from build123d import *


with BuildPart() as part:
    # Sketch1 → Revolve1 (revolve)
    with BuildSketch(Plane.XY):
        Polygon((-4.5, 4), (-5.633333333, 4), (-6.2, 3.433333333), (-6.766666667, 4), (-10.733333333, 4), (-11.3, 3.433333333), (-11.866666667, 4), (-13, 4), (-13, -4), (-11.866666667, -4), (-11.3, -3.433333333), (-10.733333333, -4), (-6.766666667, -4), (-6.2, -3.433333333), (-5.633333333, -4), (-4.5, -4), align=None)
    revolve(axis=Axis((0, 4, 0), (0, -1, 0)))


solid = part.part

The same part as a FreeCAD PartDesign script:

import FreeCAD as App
import Part
import Sketcher

V = App.Vector

doc = App.newDocument("Part")
body = doc.addObject("PartDesign::Body", "Body")

sketch1 = doc.addObject("Sketcher::SketchObject", "Sketch")
body.addObject(sketch1)
sketch1.AttachmentSupport = (doc.XY_Plane, [""])
sketch1.MapMode = "FlatFace"
sketch1.addGeometry(Part.LineSegment(V(-4.5, 4, 0), V(-5.6, 4, 0)), False)
sketch1.addGeometry(Part.LineSegment(V(-5.6, 4, 0), V(-6.2, 3.4, 0)), False)
sketch1.addGeometry(Part.LineSegment(V(-6.2, 3.4, 0), V(-6.8, 4, 0)), False)
sketch1.addGeometry(Part.LineSegment(V(-6.8, 4, 0), V(-10.7, 4, 0)), False)
sketch1.addGeometry(Part.LineSegment(V(-10.7, 4, 0), V(-11.3, 3.4, 0)), False)
sketch1.addGeometry(Part.LineSegment(V(-11.3, 3.4, 0), V(-11.9, 4, 0)), False)
sketch1.addGeometry(Part.LineSegment(V(-11.9, 4, 0), V(-13, 4, 0)), False)
sketch1.addGeometry(Part.LineSegment(V(-13, 4, 0), V(-13, -4, 0)), False)
sketch1.addGeometry(Part.LineSegment(V(-13, -4, 0), V(-11.9, -4, 0)), False)
sketch1.addGeometry(Part.LineSegment(V(-11.9, -4, 0), V(-11.3, -3.4, 0)), False)
sketch1.addGeometry(Part.LineSegment(V(-11.3, -3.4, 0), V(-10.7, -4, 0)), False)
sketch1.addGeometry(Part.LineSegment(V(-10.7, -4, 0), V(-6.8, -4, 0)), False)
sketch1.addGeometry(Part.LineSegment(V(-6.8, -4, 0), V(-6.2, -3.4, 0)), False)
sketch1.addGeometry(Part.LineSegment(V(-6.2, -3.4, 0), V(-5.6, -4, 0)), False)
sketch1.addGeometry(Part.LineSegment(V(-5.6, -4, 0), V(-4.5, -4, 0)), False)
sketch1.addGeometry(Part.LineSegment(V(-4.5, -4, 0), V(-4.5, 4, 0)), False)
sketch1.addConstraint(Sketcher.Constraint("Coincident", 0, 2, 1, 1))
sketch1.addConstraint(Sketcher.Constraint("Coincident", 1, 2, 2, 1))
sketch1.addConstraint(Sketcher.Constraint("Coincident", 2, 2, 3, 1))
sketch1.addConstraint(Sketcher.Constraint("Coincident", 3, 2, 4, 1))
sketch1.addConstraint(Sketcher.Constraint("Coincident", 4, 2, 5, 1))
sketch1.addConstraint(Sketcher.Constraint("Coincident", 5, 2, 6, 1))
sketch1.addConstraint(Sketcher.Constraint("Coincident", 6, 2, 7, 1))
sketch1.addConstraint(Sketcher.Constraint("Coincident", 7, 2, 8, 1))
sketch1.addConstraint(Sketcher.Constraint("Coincident", 8, 2, 9, 1))
sketch1.addConstraint(Sketcher.Constraint("Coincident", 9, 2, 10, 1))
sketch1.addConstraint(Sketcher.Constraint("Coincident", 10, 2, 11, 1))
sketch1.addConstraint(Sketcher.Constraint("Coincident", 11, 2, 12, 1))
sketch1.addConstraint(Sketcher.Constraint("Coincident", 12, 2, 13, 1))
sketch1.addConstraint(Sketcher.Constraint("Coincident", 13, 2, 14, 1))
sketch1.addConstraint(Sketcher.Constraint("Coincident", 14, 2, 15, 1))
sketch1.addConstraint(Sketcher.Constraint("Coincident", 15, 2, 0, 1))
sketch1.addConstraint(Sketcher.Constraint("Horizontal", 0))
sketch1.addConstraint(Sketcher.Constraint("Horizontal", 3))
sketch1.addConstraint(Sketcher.Constraint("Horizontal", 6))
sketch1.addConstraint(Sketcher.Constraint("Vertical", 7))
sketch1.addConstraint(Sketcher.Constraint("Horizontal", 8))
sketch1.addConstraint(Sketcher.Constraint("Horizontal", 11))
sketch1.addConstraint(Sketcher.Constraint("Horizontal", 14))
sketch1.addConstraint(Sketcher.Constraint("Vertical", 15))
sketch1.addConstraint(Sketcher.Constraint("Symmetric", 5, 2, 8, 2, -1))
sketch1.addConstraint(Sketcher.Constraint("Symmetric", 4, 2, 9, 2, -1))
sketch1.addConstraint(Sketcher.Constraint("Symmetric", 3, 2, 10, 2, -1))
sketch1.addConstraint(Sketcher.Constraint("Symmetric", 1, 2, 12, 2, -1))
sketch1.addConstraint(Sketcher.Constraint("Symmetric", 0, 2, 13, 2, -1))
sketch1.addConstraint(Sketcher.Constraint("Perpendicular", 1, 2))
sketch1.addConstraint(Sketcher.Constraint("Perpendicular", 2, 4))
sketch1.addConstraint(Sketcher.Constraint("Perpendicular", 4, 5))
sketch1.addConstraint(Sketcher.Constraint("Perpendicular", 5, 9))
sketch1.addConstraint(Sketcher.Constraint("Perpendicular", 10, 12))
sketch1.addConstraint(Sketcher.Constraint("Horizontal", 0, 2, 2, 2))
sketch1.addConstraint(Sketcher.Constraint("Horizontal", 1, 2, 4, 2))
sketch1.addConstraint(Sketcher.Constraint("Horizontal", 3, 2, 5, 2))
sketch1.addConstraint(Sketcher.Constraint("Equal", 0, 6))
sketch1.addConstraint(Sketcher.Constraint("DistanceY", 7, 2, 7, 1, 8.0))
sketch1.addConstraint(Sketcher.Constraint("DistanceX", 6, 2, -1, 1, 13.0))
sketch1.addConstraint(Sketcher.Constraint("DistanceX", 1, 2, -1, 1, 6.2))
sketch1.addConstraint(Sketcher.Constraint("DistanceX", 4, 2, -1, 1, 11.3))
sketch1.addConstraint(Sketcher.Constraint("DistanceX", 0, 2, 0, 1, 1.133333))
revolution = doc.addObject("PartDesign::Revolution", "Revolution")
body.addObject(revolution)
revolution.Profile = sketch1
revolution.ReferenceAxis = (sketch1, ["V_Axis"])
revolution.Angle = 360

doc.recompute()
